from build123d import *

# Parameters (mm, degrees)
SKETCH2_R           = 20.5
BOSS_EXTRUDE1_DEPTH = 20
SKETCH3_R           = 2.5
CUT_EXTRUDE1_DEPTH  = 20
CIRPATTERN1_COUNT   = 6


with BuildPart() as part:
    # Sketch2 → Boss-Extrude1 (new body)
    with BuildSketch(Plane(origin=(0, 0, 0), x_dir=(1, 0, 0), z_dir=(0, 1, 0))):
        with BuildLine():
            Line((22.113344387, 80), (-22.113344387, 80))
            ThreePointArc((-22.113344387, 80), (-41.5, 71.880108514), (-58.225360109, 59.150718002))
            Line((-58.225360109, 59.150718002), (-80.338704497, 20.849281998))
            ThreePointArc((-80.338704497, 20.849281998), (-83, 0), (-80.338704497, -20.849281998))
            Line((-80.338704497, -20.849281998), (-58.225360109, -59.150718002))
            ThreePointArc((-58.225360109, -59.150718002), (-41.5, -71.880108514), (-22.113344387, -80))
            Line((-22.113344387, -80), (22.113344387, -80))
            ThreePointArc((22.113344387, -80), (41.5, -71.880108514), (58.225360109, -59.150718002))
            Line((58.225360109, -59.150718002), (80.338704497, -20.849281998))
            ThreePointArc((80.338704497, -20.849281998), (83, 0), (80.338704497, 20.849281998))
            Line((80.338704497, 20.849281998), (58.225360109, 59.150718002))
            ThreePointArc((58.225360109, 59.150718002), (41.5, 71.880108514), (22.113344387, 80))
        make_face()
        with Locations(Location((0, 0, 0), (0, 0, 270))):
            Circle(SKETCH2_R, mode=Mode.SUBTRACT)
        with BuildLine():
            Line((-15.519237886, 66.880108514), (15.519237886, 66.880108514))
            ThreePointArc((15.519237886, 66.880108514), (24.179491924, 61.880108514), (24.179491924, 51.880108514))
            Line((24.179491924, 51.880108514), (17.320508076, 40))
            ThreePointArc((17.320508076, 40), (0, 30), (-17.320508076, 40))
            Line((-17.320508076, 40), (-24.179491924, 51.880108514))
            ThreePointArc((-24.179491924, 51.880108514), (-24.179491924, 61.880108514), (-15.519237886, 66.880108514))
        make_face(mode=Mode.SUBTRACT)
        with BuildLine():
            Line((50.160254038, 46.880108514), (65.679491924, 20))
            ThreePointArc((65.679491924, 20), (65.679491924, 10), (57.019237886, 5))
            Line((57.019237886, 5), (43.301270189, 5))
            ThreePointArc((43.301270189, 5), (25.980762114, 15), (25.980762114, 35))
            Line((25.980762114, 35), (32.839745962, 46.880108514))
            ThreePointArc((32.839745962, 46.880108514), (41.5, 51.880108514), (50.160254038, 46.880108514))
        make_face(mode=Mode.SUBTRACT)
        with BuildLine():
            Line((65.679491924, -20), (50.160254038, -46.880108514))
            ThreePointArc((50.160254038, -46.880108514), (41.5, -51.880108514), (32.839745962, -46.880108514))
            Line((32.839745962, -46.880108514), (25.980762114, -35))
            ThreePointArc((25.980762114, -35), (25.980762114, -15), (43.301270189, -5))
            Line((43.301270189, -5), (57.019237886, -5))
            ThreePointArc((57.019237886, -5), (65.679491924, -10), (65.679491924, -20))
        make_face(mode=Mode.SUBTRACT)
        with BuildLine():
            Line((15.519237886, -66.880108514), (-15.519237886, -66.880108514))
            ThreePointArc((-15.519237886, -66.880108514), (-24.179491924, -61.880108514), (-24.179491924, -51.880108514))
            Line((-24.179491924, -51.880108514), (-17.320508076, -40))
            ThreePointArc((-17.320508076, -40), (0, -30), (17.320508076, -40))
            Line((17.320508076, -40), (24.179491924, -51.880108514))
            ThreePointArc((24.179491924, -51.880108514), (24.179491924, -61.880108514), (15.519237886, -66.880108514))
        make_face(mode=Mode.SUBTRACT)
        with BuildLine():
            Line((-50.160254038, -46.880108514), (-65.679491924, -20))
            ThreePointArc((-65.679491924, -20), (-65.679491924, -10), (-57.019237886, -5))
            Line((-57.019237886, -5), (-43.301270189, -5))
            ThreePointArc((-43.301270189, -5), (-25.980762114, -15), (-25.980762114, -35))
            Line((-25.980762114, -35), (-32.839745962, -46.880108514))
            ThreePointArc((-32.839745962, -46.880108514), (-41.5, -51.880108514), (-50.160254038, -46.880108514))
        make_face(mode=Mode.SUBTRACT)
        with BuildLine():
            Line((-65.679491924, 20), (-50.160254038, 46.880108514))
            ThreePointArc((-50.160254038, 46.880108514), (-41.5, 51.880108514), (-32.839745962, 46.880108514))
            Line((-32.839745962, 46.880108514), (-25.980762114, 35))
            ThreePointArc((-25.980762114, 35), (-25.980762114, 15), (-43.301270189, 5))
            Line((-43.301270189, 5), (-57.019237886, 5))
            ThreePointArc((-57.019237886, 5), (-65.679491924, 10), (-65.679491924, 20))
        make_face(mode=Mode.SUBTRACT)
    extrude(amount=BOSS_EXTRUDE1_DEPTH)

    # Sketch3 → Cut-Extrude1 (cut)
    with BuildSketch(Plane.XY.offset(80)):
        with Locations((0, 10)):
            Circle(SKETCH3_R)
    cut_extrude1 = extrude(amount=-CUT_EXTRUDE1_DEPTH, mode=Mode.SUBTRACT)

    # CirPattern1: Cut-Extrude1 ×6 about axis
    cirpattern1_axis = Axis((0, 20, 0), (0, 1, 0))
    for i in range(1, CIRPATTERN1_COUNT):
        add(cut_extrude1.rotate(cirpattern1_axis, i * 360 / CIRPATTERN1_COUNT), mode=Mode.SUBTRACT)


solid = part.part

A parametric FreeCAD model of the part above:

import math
import FreeCAD as App
import Part
import Sketcher
Q = App.Units.Quantity

doc = App.newDocument("Part")
body = doc.addObject("PartDesign::Body", "Body")

# Sketch on XZ plane
sketch1 = body.newObject("Sketcher::SketchObject", "Sketch")
sketch1.AttachmentSupport = (doc.getObject("XZ_Plane"), [""])
sketch1.MapMode = "FlatFace"
sketch1.addGeometry([
    Part.LineSegment(App.Vector(22.113344, -80, 0), App.Vector(-22.113344, -80, 0)),  # 0
    Part.ArcOfCircle(Part.Circle(App.Vector(0, 0, 0), App.Vector(0, 0, 1), 83), math.radians(-134.548307), math.radians(-105.451693)),  # 1
    Part.LineSegment(App.Vector(-58.22536, -59.150718, 0), App.Vector(-80.338704, -20.849282, 0)),  # 2
    Part.ArcOfCircle(Part.Circle(App.Vector(0, 0, 0), App.Vector(0, 0, 1), 83), math.radians(165.451693), math.radians(194.548307)),  # 3
    Part.LineSegment(App.Vector(-80.338704, 20.849282, 0), App.Vector(-58.22536, 59.150718, 0)),  # 4
    Part.ArcOfCircle(Part.Circle(App.Vector(0, 0, 0), App.Vector(0, 0, 1), 83), math.radians(105.451693), math.radians(134.548307)),  # 5
    Part.LineSegment(App.Vector(-22.113344, 80, 0), App.Vector(22.113344, 80, 0)),  # 6
    Part.ArcOfCircle(Part.Circle(App.Vector(0, 0, 0), App.Vector(0, 0, 1), 83), math.radians(45.451693), math.radians(74.548307)),  # 7
    Part.LineSegment(App.Vector(58.22536, 59.150718, 0), App.Vector(80.338704, 20.849282, 0)),  # 8
    Part.ArcOfCircle(Part.Circle(App.Vector(0, 0, 0), App.Vector(0, 0, 1), 83), math.radians(-14.548307), math.radians(14.548307)),  # 9
    Part.LineSegment(App.Vector(80.338704, -20.849282, 0), App.Vector(58.22536, -59.150718, 0)),  # 10
    Part.ArcOfCircle(Part.Circle(App.Vector(0, 0, 0), App.Vector(0, 0, 1), 83), math.radians(-74.548307), math.radians(-45.451693)),  # 11
    Part.ArcOfCircle(Part.Circle(App.Vector(-41.5, 41.880109, 0), App.Vector(0, 0, 1), 10), math.radians(30), math.radians(150)),  # 12
    Part.LineSegment(App.Vector(-50.160254, 46.880109, 0), App.Vector(-65.679492, 20, 0)),  # 13
    Part.ArcOfCircle(Part.Circle(App.Vector(-57.019238, 15, 0), App.Vector(0, 0, 1), 10), math.radians(150), math.radians(270)),  # 14
    Part.LineSegment(App.Vector(-57.019238, 5, 0), App.Vector(-43.30127, 5, 0)),  # 15
    Part.ArcOfCircle(Part.Circle(App.Vector(-43.30127, 25, 0), App.Vector(0, 0, 1), 20), math.radians(-90), math.radians(30)),  # 16
    Part.LineSegment(App.Vector(-25.980762, 35, 0), App.Vector(-32.839746, 46.880109, 0)),  # 17
    Part.ArcOfCircle(Part.Circle(App.Vector(15.519238, 56.880109, 0), App.Vector(0, 0, 1), 10), math.radians(-30), math.radians(90)),  # 18
    Part.LineSegment(App.Vector(15.519238, 66.880109, 0), App.Vector(-15.519238, 66.880109, 0)),  # 19
    Part.ArcOfCircle(Part.Circle(App.Vector(-15.519238, 56.880109, 0), App.Vector(0, 0, 1), 10), math.radians(90), math.radians(210)),  # 20
    Part.LineSegment(App.Vector(-24.179492, 51.880109, 0), App.Vector(-17.320508, 40, 0)),  # 21
    Part.ArcOfCircle(Part.Circle(App.Vector(0, 50, 0), App.Vector(0, 0, 1), 20), math.radians(-150), math.radians(-30)),  # 22
    Part.LineSegment(App.Vector(17.320508, 40, 0), App.Vector(24.179492, 51.880109, 0)),  # 23
    Part.ArcOfCircle(Part.Circle(App.Vector(57.019238, 15, 0), App.Vector(0, 0, 1), 10), math.radians(-90), math.radians(30)),  # 24
    Part.LineSegment(App.Vector(65.679492, 20, 0), App.Vector(50.160254, 46.880109, 0)),  # 25
    Part.ArcOfCircle(Part.Circle(App.Vector(41.5, 41.880109, 0), App.Vector(0, 0, 1), 10), math.radians(30), math.radians(150)),  # 26
    Part.LineSegment(App.Vector(32.839746, 46.880109, 0), App.Vector(25.980762, 35, 0)),  # 27
    Part.ArcOfCircle(Part.Circle(App.Vector(43.30127, 25, 0), App.Vector(0, 0, 1), 20), math.radians(150), math.radians(270)),  # 28
    Part.LineSegment(App.Vector(43.30127, 5, 0), App.Vector(57.019238, 5, 0)),  # 29
    Part.ArcOfCircle(Part.Circle(App.Vector(-57.019238, -15, 0), App.Vector(0, 0, 1), 10), math.radians(90), math.radians(210)),  # 30
    Part.LineSegment(App.Vector(-65.679492, -20, 0), App.Vector(-50.160254, -46.880109, 0)),  # 31
    Part.ArcOfCircle(Part.Circle(App.Vector(-41.5, -41.880109, 0), App.Vector(0, 0, 1), 10), math.radians(-150), math.radians(-30)),  # 32
    Part.LineSegment(App.Vector(-32.839746, -46.880109, 0), App.Vector(-25.980762, -35, 0)),  # 33
    Part.ArcOfCircle(Part.Circle(App.Vector(-43.30127, -25, 0), App.Vector(0, 0, 1), 20), math.radians(-30), math.radians(90)),  # 34
    Part.LineSegment(App.Vector(-43.30127, -5, 0), App.Vector(-57.019238, -5, 0)),  # 35
    Part.Circle(App.Vector(0, 0, 0), App.Vector(0, 0, 1), 20.5),  # 36
    Part.ArcOfCircle(Part.Circle(App.Vector(41.5, -41.880109, 0), App.Vector(0, 0, 1), 10), math.radians(-150), math.radians(-30)),  # 37
    Part.LineSegment(App.Vector(50.160254, -46.880109, 0), App.Vector(65.679492, -20, 0)),  # 38
    Part.ArcOfCircle(Part.Circle(App.Vector(57.019238, -15, 0), App.Vector(0, 0, 1), 10), math.radians(-30), math.radians(90)),  # 39
    Part.LineSegment(App.Vector(57.019238, -5, 0), App.Vector(43.30127, -5, 0)),  # 40
    Part.ArcOfCircle(Part.Circle(App.Vector(43.30127, -25, 0), App.Vector(0, 0, 1), 20), math.radians(90), math.radians(210)),  # 41
    Part.LineSegment(App.Vector(25.980762, -35, 0), App.Vector(32.839746, -46.880109, 0)),  # 42
    Part.ArcOfCircle(Part.Circle(App.Vector(-15.519238, -56.880109, 0), App.Vector(0, 0, 1), 10), math.radians(150), math.radians(270)),  # 43
    Part.LineSegment(App.Vector(-15.519238, -66.880109, 0), App.Vector(15.519238, -66.880109, 0)),  # 44
    Part.ArcOfCircle(Part.Circle(App.Vector(15.519238, -56.880109, 0), App.Vector(0, 0, 1), 10), math.radians(-90), math.radians(30)),  # 45
    Part.LineSegment(App.Vector(24.179492, -51.880109, 0), App.Vector(17.320508, -40, 0)),  # 46
    Part.ArcOfCircle(Part.Circle(App.Vector(0, -50, 0), App.Vector(0, 0, 1), 20), math.radians(30), math.radians(150)),  # 47
    Part.LineSegment(App.Vector(-17.320508, -40, 0), App.Vector(-24.179492, -51.880109, 0)),  # 48
], False)
sketch1.addConstraint([
    Sketcher.Constraint("Coincident", 0, 2, 1, 2),
    Sketcher.Constraint("Coincident", 1, 1, 2, 1),
    Sketcher.Constraint("Coincident", 2, 2, 3, 2),
    Sketcher.Constraint("Coincident", 3, 1, 4, 1),
    Sketcher.Constraint("Coincident", 4, 2, 5, 2),
    Sketcher.Constraint("Coincident", 5, 1, 6, 1),
    Sketcher.Constraint("Coincident", 6, 2, 7, 2),
    Sketcher.Constraint("Coincident", 7, 1, 8, 1),
    Sketcher.Constraint("Coincident", 8, 2, 9, 2),
    Sketcher.Constraint("Coincident", 9, 1, 10, 1),
    Sketcher.Constraint("Coincident", 10, 2, 11, 2),
    Sketcher.Constraint("Coincident", 11, 1, 0, 1),
    Sketcher.Constraint("Tangent", 12, 2, 13, 1),
    Sketcher.Constraint("Tangent", 13, 2, 14, 1),
    Sketcher.Constraint("Tangent", 14, 2, 15, 1),
    Sketcher.Constraint("Tangent", 15, 2, 16, 1),
    Sketcher.Constraint("Tangent", 16, 2, 17, 1),
    Sketcher.Constraint("Tangent", 17, 2, 12, 1),
    Sketcher.Constraint("Tangent", 18, 2, 19, 1),
    Sketcher.Constraint("Tangent", 19, 2, 20, 1),
    Sketcher.Constraint("Tangent", 20, 2, 21, 1),
    Sketcher.Constraint("Tangent", 21, 2, 22, 1),
    Sketcher.Constraint("Tangent", 22, 2, 23, 1),
    Sketcher.Constraint("Tangent", 23, 2, 18, 1),
    Sketcher.Constraint("Tangent", 24, 2, 25, 1),
    Sketcher.Constraint("Tangent", 25, 2, 26, 1),
    Sketcher.Constraint("Tangent", 26, 2, 27, 1),
    Sketcher.Constraint("Tangent", 27, 2, 28, 1),
    Sketcher.Constraint("Tangent", 28, 2, 29, 1),
    Sketcher.Constraint("Tangent", 29, 2, 24, 1),
    Sketcher.Constraint("Tangent", 30, 2, 31, 1),
    Sketcher.Constraint("Tangent", 31, 2, 32, 1),
    Sketcher.Constraint("Tangent", 32, 2, 33, 1),
    Sketcher.Constraint("Tangent", 33, 2, 34, 1),
    Sketcher.Constraint("Tangent", 34, 2, 35, 1),
    Sketcher.Constraint("Tangent", 35, 2, 30, 1),
    Sketcher.Constraint("Tangent", 37, 2, 38, 1),
    Sketcher.Constraint("Tangent", 38, 2, 39, 1),
    Sketcher.Constraint("Tangent", 39, 2, 40, 1),
    Sketcher.Constraint("Tangent", 40, 2, 41, 1),
    Sketcher.Constraint("Tangent", 41, 2, 42, 1),
    Sketcher.Constraint("Tangent", 42, 2, 37, 1),
    Sketcher.Constraint("Tangent", 43, 2, 44, 1),
    Sketcher.Constraint("Tangent", 44, 2, 45, 1),
    Sketcher.Constraint("Tangent", 45, 2, 46, 1),
    Sketcher.Constraint("Tangent", 46, 2, 47, 1),
    Sketcher.Constraint("Tangent", 47, 2, 48, 1),
    Sketcher.Constraint("Tangent", 48, 2, 43, 1),
    Sketcher.Constraint("Horizontal", 0),
    Sketcher.Constraint("Horizontal", 6),
    Sketcher.Constraint("Horizontal", 15),
    Sketcher.Constraint("Horizontal", 19),
    Sketcher.Constraint("Horizontal", 29),
    Sketcher.Constraint("Horizontal", 35),
    Sketcher.Constraint("Horizontal", 40),
    Sketcher.Constraint("Horizontal", 44),
    Sketcher.Constraint("Coincident", 1, 3, -1, 1),
    Sketcher.Constraint("Coincident", 3, 3, -1, 1),
    Sketcher.Constraint("Coincident", 5, 3, -1, 1),
    Sketcher.Constraint("Coincident", 7, 3, -1, 1),
    Sketcher.Constraint("Coincident", 9, 3, -1, 1),
    Sketcher.Constraint("Coincident", 11, 3, -1, 1),
    Sketcher.Constraint("Coincident", 36, 3, -1, 1),
    Sketcher.Constraint("Equal", 1, 3),
    Sketcher.Constraint("Equal", 3, 5),
    Sketcher.Constraint("Equal", 5, 7),
    Sketcher.Constraint("Equal", 7, 9),
    Sketcher.Constraint("Equal", 9, 11),
    Sketcher.Constraint("Equal", 12, 14),
    Sketcher.Constraint("Equal", 14, 18),
    Sketcher.Constraint("Equal", 18, 20),
    Sketcher.Constraint("Equal", 16, 22),
    Sketcher.Constraint("Equal", 20, 24),
    Sketcher.Constraint("Equal", 24, 26),
    Sketcher.Constraint("Equal", 22, 28),
    Sketcher.Constraint("Equal", 26, 30),
    Sketcher.Constraint("Equal", 30, 32),
    Sketcher.Constraint("Equal", 28, 34),
    Sketcher.Constraint("Equal", 32, 37),
    Sketcher.Constraint("Equal", 37, 39),
    Sketcher.Constraint("Equal", 34, 41),
    Sketcher.Constraint("Equal", 39, 43),
    Sketcher.Constraint("Equal", 43, 45),
    Sketcher.Constraint("Equal", 41, 47),
    Sketcher.Constraint("Symmetric", 24, 3, 30, 3, -1, 1),
    Sketcher.Constraint("Symmetric", 26, 3, 32, 3, -1, 1),
    Sketcher.Constraint("Symmetric", 12, 3, 37, 3, -1, 1),
    Sketcher.Constraint("Symmetric", 14, 3, 39, 3, -1, 1),
    Sketcher.Constraint("Symmetric", 18, 3, 43, 3, -1, 1),
    Sketcher.Constraint("Symmetric", 22, 3, 47, 3, -1, 1),
    Sketcher.Constraint("Symmetric", 14, 3, 24, 3, -2),
    Sketcher.Constraint("Symmetric", 12, 3, 26, 3, -2),
    Sketcher.Constraint("Symmetric", 21, 2, 22, 2, -2),
    Sketcher.Constraint("Parallel", 2, 8),
    Sketcher.Constraint("Parallel", 4, 10),
    Sketcher.Constraint("Parallel", 10, 13),
    Sketcher.Constraint("Parallel", 8, 17),
    Sketcher.Constraint("Parallel", 17, 21),
    Sketcher.Constraint("Parallel", 13, 23),
    Sketcher.Constraint("Parallel", 23, 27),
    Sketcher.Constraint("Parallel", 27, 33),
    Sketcher.Constraint("Parallel", 31, 42),
    Sketcher.Constraint("Parallel", 42, 46),
    Sketcher.Constraint("Horizontal", 4, 2, 7, 1),
    Sketcher.Constraint("Horizontal", 2, 2, 9, 1),
    Sketcher.Constraint("Vertical", 2, 2, 3, 1),
    Sketcher.Constraint("Vertical", 0, 2, 5, 1),
    Sketcher.Constraint("Equal", 17, 21),
    Sketcher.Constraint("Diameter", 36, 41.0),
    Sketcher.Constraint("Radius", 1, 83.0),
    Sketcher.Constraint("Radius", 12, 10.0),
    Sketcher.Constraint("Radius", 16, 20.0),
    Sketcher.Constraint("Angle", 2, Q("120 deg")),
    Sketcher.Constraint("DistanceY", -1, 1, 14, 3, 15.0),
    Sketcher.Constraint("DistanceY", -1, 1, 22, 3, 50.0),
    Sketcher.Constraint("DistanceY", 0, 2, -1, 1, 80.0),
    Sketcher.Constraint("DistanceX", 12, 3, -1, 1, 41.5),
    Sketcher.Constraint("Distance", 2, 44.226689),
    Sketcher.Constraint("DistanceX", 15, 1, 15, 2, 13.717968),
])
pad1 = body.newObject("PartDesign::Pad", "Pad")
pad1.Profile = sketch1
pad1.Length = 20
pad1.Reversed = True

# Sketch on XY plane
sketch2 = body.newObject("Sketcher::SketchObject", "Sketch001")
sketch2.AttachmentSupport = (doc.getObject("XY_Plane"), [""])
sketch2.MapMode = "FlatFace"
sketch2.AttachmentOffset = App.Placement(App.Vector(0, 0, 80), App.Rotation())
sketch2.addGeometry(Part.Circle(App.Vector(0, 10, 0), App.Vector(0, 0, 1), 2.5), False)
sketch2.addConstraint([
    Sketcher.Constraint("PointOnObject", 0, 3, -2),
    Sketcher.Constraint("Diameter", 0, 5.0),
    Sketcher.Constraint("DistanceY", -1, 1, 0, 3, 10.0),
])
pocket1 = body.newObject("PartDesign::Pocket", "Pocket")
pocket1.Profile = sketch2
pocket1.Length = 20
doc.recompute()

polarpattern = body.newObject("PartDesign::PolarPattern", "PolarPattern")
polarpattern.Originals = [pocket1]
polarpattern.Axis = (doc.getObject("Y_Axis"), [""])
polarpattern.Angle = 360
polarpattern.Occurrences = 6
body.Tip = polarpattern

doc.recompute()
